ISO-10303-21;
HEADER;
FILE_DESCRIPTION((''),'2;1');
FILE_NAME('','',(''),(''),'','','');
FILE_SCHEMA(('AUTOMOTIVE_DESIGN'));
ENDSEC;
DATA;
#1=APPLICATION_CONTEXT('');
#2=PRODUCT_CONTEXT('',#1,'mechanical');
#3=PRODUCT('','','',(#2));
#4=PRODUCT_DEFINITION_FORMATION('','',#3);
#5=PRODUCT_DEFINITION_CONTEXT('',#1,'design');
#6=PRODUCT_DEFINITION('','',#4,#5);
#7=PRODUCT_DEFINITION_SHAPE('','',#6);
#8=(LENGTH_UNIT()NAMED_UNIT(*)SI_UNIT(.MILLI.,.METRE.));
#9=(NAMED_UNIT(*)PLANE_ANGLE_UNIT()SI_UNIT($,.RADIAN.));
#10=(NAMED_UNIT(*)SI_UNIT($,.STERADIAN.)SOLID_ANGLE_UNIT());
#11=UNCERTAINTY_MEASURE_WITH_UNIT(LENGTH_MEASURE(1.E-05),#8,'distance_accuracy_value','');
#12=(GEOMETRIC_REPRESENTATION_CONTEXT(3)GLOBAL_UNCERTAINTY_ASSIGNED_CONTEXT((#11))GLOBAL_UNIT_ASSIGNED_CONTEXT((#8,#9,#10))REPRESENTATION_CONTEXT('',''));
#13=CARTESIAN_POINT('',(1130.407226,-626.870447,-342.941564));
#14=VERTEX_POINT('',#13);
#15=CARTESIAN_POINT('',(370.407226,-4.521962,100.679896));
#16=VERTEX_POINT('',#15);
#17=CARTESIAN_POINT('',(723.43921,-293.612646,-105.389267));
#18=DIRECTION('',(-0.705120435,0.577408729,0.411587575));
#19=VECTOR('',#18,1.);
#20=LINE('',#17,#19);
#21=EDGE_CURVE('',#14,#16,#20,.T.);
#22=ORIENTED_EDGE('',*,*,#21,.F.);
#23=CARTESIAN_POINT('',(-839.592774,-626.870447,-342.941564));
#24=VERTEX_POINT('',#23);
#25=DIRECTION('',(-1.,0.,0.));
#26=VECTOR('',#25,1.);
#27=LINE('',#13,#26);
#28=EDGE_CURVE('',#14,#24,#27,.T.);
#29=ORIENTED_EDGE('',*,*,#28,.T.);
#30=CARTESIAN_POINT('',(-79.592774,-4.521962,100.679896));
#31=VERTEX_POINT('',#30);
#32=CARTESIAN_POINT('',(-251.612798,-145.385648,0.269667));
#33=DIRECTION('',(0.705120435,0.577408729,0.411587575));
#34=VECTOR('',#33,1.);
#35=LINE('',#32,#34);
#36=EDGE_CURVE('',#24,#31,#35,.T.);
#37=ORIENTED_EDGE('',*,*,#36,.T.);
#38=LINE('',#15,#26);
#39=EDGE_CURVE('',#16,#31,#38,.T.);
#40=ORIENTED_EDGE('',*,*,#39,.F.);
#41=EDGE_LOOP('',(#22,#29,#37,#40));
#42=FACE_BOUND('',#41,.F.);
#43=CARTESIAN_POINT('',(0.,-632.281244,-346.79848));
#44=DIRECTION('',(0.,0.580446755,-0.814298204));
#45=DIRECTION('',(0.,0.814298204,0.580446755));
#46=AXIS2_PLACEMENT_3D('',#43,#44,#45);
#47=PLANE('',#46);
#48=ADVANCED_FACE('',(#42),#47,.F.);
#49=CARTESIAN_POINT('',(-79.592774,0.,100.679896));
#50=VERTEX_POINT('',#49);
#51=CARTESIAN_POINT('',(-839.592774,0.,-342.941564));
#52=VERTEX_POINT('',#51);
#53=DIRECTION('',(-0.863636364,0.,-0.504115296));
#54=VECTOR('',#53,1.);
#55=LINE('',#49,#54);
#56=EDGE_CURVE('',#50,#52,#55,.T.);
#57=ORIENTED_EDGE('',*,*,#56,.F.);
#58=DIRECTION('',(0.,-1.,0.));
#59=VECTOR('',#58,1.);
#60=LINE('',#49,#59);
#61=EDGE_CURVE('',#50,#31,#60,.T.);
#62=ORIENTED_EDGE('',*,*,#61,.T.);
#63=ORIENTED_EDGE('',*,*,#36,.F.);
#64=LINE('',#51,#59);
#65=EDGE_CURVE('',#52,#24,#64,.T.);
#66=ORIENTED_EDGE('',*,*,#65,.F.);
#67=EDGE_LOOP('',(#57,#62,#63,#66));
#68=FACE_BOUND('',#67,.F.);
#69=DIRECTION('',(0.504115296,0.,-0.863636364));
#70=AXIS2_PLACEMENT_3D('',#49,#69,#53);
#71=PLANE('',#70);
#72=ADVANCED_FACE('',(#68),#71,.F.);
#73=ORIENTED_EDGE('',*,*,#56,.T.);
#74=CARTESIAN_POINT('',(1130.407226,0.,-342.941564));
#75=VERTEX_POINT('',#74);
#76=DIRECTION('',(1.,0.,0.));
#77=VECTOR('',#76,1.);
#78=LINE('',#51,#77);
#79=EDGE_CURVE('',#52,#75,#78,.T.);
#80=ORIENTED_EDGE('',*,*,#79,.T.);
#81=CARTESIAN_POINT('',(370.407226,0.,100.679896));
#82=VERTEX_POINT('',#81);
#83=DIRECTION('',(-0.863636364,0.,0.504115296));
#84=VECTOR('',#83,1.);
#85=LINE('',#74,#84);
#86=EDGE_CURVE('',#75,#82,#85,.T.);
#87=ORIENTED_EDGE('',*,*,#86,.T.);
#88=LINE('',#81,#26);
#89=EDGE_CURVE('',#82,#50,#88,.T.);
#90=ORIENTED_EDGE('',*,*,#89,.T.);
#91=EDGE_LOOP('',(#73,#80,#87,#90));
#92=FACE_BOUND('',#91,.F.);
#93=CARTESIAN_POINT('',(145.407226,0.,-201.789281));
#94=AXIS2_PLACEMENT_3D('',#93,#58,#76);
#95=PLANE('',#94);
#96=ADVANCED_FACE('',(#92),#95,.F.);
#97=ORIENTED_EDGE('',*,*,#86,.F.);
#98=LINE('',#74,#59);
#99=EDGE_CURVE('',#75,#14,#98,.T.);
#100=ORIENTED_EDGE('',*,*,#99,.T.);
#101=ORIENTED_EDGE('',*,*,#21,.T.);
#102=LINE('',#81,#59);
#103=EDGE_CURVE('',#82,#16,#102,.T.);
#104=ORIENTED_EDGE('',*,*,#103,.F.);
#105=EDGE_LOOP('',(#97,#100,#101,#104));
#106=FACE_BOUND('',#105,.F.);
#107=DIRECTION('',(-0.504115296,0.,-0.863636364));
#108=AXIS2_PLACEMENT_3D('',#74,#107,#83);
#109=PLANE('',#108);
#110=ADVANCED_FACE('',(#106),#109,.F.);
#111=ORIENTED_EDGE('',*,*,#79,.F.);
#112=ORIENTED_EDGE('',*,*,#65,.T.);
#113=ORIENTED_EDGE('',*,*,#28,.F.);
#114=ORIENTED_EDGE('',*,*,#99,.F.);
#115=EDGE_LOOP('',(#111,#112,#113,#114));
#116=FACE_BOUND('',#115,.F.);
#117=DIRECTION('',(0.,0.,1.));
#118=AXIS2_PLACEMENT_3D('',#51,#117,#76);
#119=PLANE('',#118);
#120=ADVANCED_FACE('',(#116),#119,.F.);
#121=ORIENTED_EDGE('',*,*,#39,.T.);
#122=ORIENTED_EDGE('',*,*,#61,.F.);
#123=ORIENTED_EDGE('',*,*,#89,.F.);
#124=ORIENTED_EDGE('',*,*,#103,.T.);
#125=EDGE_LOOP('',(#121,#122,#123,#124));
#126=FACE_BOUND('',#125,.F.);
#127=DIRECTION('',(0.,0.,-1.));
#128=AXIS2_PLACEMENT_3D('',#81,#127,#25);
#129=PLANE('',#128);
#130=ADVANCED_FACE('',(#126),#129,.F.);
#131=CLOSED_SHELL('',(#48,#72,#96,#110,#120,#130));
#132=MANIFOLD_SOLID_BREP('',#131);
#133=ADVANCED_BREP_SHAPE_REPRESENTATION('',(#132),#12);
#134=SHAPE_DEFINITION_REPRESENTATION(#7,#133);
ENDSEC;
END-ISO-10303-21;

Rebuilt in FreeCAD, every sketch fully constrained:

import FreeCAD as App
import Part
import Sketcher
from FreeCAD import Vector


def add_polygon(sketch, points):
    """Adds a closed chain of lines whose ends are joined by coincident constraints."""
    first, n = sketch.GeometryCount, len(points)
    for a, b in zip(points, points[1:] + points[:1]):
        sketch.addGeometry(Part.LineSegment(App.Vector(*a, 0), App.Vector(*b, 0)), False)
    for i in range(n):
        sketch.addConstraint(Sketcher.Constraint("Coincident", first + i, 2, first + (i + 1) % n, 1))

doc = App.newDocument("Part")
body = doc.addObject("PartDesign::Body", "Body")

sketch1 = body.newObject("Sketcher::SketchObject", "Sketch")
sketch1.AttachmentSupport = (doc.getObject("XZ_Plane"), [""])
sketch1.MapMode = "FlatFace"
add_polygon(sketch1, [(-80, 101), (-840, -343), (1130, -343), (370, 101)])
sketch1.addConstraint([
    Sketcher.Constraint("Horizontal", 1),
    Sketcher.Constraint("Horizontal", 3),
    Sketcher.Constraint("Equal", 0, 2),
    Sketcher.Constraint("DistanceX", 1, 1, 1, 2, 1970.0),
    Sketcher.Constraint("DistanceX", 3, 2, 3, 1, 450.0),
    Sketcher.Constraint("Distance", 0, 880.0),
    Sketcher.Constraint("DistanceX", 0, 2, -1, 1, 839.592774),
    Sketcher.Constraint("DistanceY", 0, 2, -1, 1, 342.941564),
])
pad1 = body.newObject("PartDesign::Pad", "Pad")
pad1.Profile = sketch1
pad1.Length = 628

sketch2 = body.newObject("Sketcher::SketchObject", "Sketch001")
sketch2.AttachmentSupport = (doc.getObject("YZ_Plane"), [""])
sketch2.MapMode = "FlatFace"
add_polygon(sketch2, [(-632, -347), (0, 104), (-632, 104)])
sketch2.addConstraint([
    Sketcher.Constraint("Horizontal", 1),
    Sketcher.Constraint("Vertical", 2),
    Sketcher.Constraint("PointOnObject", 0, 2, -2),
    Sketcher.Constraint("Distance", 0, 776.473829),
    Sketcher.Constraint("DistanceX", 1, 2, 1, 1, 632.281244),
    Sketcher.Constraint("DistanceY", 2, 2, -1, 1, 346.79848),
])
pocket1 = body.newObject("PartDesign::Pocket", "Pocket")
pocket1.Profile = sketch2
pocket1.Type = "ThroughAll"
pocket1.Midplane = True

doc.recompute()
